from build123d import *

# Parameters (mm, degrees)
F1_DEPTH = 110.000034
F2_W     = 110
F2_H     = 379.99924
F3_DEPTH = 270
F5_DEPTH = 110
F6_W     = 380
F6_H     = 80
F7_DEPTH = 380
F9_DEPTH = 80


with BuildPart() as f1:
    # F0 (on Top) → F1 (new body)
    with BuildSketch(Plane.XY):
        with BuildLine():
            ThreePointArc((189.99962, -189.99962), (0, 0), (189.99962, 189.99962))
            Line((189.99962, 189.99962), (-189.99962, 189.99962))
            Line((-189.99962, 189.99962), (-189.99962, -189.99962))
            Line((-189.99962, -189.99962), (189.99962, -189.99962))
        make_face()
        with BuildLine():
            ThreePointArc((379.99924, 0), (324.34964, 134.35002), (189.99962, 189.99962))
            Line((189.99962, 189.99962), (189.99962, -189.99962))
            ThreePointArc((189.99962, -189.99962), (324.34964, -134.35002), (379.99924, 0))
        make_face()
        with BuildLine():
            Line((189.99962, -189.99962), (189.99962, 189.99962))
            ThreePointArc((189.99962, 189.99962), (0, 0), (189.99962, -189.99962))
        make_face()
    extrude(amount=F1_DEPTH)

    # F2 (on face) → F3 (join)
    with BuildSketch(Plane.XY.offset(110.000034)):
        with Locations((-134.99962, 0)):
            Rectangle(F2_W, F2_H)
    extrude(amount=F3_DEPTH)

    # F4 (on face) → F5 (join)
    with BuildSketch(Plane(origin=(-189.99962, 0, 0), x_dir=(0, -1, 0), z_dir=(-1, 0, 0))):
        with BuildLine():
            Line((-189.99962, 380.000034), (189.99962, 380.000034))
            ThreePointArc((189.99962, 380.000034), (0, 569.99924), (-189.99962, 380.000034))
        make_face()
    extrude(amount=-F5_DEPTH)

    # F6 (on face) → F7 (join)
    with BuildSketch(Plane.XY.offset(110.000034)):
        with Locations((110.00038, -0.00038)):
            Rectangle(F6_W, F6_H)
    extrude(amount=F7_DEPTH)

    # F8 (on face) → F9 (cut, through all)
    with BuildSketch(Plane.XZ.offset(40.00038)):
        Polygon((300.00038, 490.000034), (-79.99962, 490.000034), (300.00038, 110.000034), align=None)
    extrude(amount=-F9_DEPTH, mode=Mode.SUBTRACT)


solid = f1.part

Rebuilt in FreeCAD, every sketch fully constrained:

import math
import FreeCAD as App
import Part
import Sketcher
from FreeCAD import Vector


def add_polygon(sketch, points):
    """Adds a closed chain of lines whose ends are joined by coincident constraints."""
    first, n = sketch.GeometryCount, len(points)
    for a, b in zip(points, points[1:] + points[:1]):
        sketch.addGeometry(Part.LineSegment(App.Vector(*a, 0), App.Vector(*b, 0)), False)
    for i in range(n):
        sketch.addConstraint(Sketcher.Constraint("Coincident", first + i, 2, first + (i + 1) % n, 1))

doc = App.newDocument("Part")
params = doc.addObject("Spreadsheet::Sheet", "Params")
for row, (alias, value) in enumerate([
    ("pad1_length", "110.000034 mm"),
    ("sketch2_width", "110 mm"),
    ("pad2_length", "270 mm"),
    ("pad3_length", "110 mm"),
    ("sketch4_width", "380 mm"),
    ("sketch4_height", "80 mm"),
    ("pad4_length", "380 mm"),
    ("sketch5_width", "380 mm"),
], start=1):
    params.set(f"A{row}", alias)
    params.set(f"B{row}", "=" + value)
    params.setAlias(f"B{row}", alias)

body = doc.addObject("PartDesign::Body", "Body")

sketch1 = doc.addObject("Sketcher::SketchObject", "Sketch")
body.addObject(sketch1)
sketch1.AttachmentSupport = (doc.XY_Plane, [""])
sketch1.MapMode = "FlatFace"
sketch1.addGeometry([
    Part.LineSegment(Vector(190, 190, 0), Vector(-190, 190, 0)),
    Part.LineSegment(Vector(-190, 190, 0), Vector(-190, -190, 0)),
    Part.LineSegment(Vector(-190, -190, 0), Vector(190, -190, 0)),
    Part.ArcOfCircle(Part.Circle(Vector(190, 0, 0), Vector(0, 0, 1), 190), math.radians(-90), math.radians(0)),
    Part.ArcOfCircle(Part.Circle(Vector(190, 0, 0), Vector(0, 0, 1), 190), math.radians(0), math.radians(90)),
], False)
sketch1.addConstraint([
    Sketcher.Constraint("Coincident", 0, 2, 1, 1),
    Sketcher.Constraint("Coincident", 1, 2, 2, 1),
    Sketcher.Constraint("Tangent", 2, 2, 3, 1),
    Sketcher.Constraint("Tangent", 3, 2, 4, 1),
    Sketcher.Constraint("Tangent", 4, 2, 0, 1),
    Sketcher.Constraint("Horizontal", 0),
    Sketcher.Constraint("Vertical", 1),
    Sketcher.Constraint("Horizontal", 2),
    Sketcher.Constraint("Equal", 3, 4),
    Sketcher.Constraint("Symmetric", 0, 2, 2, 2, -1, 1),
    Sketcher.Constraint("PointOnObject", 3, 2, -1),
    Sketcher.Constraint("Equal", 2, 1),
    Sketcher.Constraint("Radius", 3, 189.999619),
])
pad1 = doc.addObject("PartDesign::Pad", "Pad")
body.addObject(pad1)
pad1.Profile = sketch1
pad1.setExpression("Length", "Params.pad1_length")

sketch2 = doc.addObject("Sketcher::SketchObject", "Sketch001")
body.addObject(sketch2)
sketch2.AttachmentSupport = (doc.XY_Plane, [""])
sketch2.MapMode = "FlatFace"
sketch2.AttachmentOffset = App.Placement(Vector(0, 0, 110.000034), App.Rotation())
add_polygon(sketch2, [(-190, 190), (-190, -190), (-80, -190), (-80, 190)])
sketch2.addConstraint([
    Sketcher.Constraint("Vertical", 0),
    Sketcher.Constraint("Horizontal", 1),
    Sketcher.Constraint("Vertical", 2),
    Sketcher.Constraint("Horizontal", 3),
    Sketcher.Constraint("DistanceX", 1, 1, 1, 2, 110.0),
    Sketcher.Constraint("DistanceY", 0, 2, 0, 1, 379.99924),
    Sketcher.Constraint("DistanceX", 0, 2, -1, 1, 189.99962),
    Sketcher.Constraint("DistanceY", 0, 2, -1, 1, 189.99962),
])
sketch2.setExpression("Constraints[8]", "Params.sketch2_width")
pad2 = doc.addObject("PartDesign::Pad", "Pad001")
body.addObject(pad2)
pad2.Profile = sketch2
pad2.setExpression("Length", "Params.pad2_length")

sketch3 = doc.addObject("Sketcher::SketchObject", "Sketch002")
body.addObject(sketch3)
sketch3.AttachmentSupport = (doc.YZ_Plane, [""])
sketch3.MapMode = "FlatFace"
sketch3.AttachmentOffset = App.Placement(Vector(0, 0, -189.99962), App.Rotation())
sketch3.addGeometry([
    Part.LineSegment(Vector(190, 380, 0), Vector(-190, 380, 0)),
    Part.ArcOfCircle(Part.Circle(Vector(0, 380, 0), Vector(0, 0, 1), 190), math.radians(0), math.radians(180)),
], False)
sketch3.addConstraint([
    Sketcher.Constraint("Coincident", 0, 1, 1, 1),
    Sketcher.Constraint("Coincident", 1, 2, 0, 2),
    Sketcher.Constraint("Horizontal", 0),
    Sketcher.Constraint("PointOnObject", 1, 3, -2),
    Sketcher.Constraint("Radius", 1, 189.99962),
    Sketcher.Constraint("DistanceY", -1, 1, 1, 3, 379.99962),
    Sketcher.Constraint("DistanceY", -1, 1, 0, 1, 380.000034),
])
pad3 = doc.addObject("PartDesign::Pad", "Pad002")
body.addObject(pad3)
pad3.Profile = sketch3
pad3.setExpression("Length", "Params.pad3_length")

sketch4 = doc.addObject("Sketcher::SketchObject", "Sketch003")
body.addObject(sketch4)
sketch4.AttachmentSupport = (doc.XY_Plane, [""])
sketch4.MapMode = "FlatFace"
sketch4.AttachmentOffset = App.Placement(Vector(0, 0, 110.000034), App.Rotation())
add_polygon(sketch4, [(-80, 40), (-80, -40), (300, -40), (300, 40)])
sketch4.addConstraint([
    Sketcher.Constraint("Vertical", 0),
    Sketcher.Constraint("Horizontal", 1),
    Sketcher.Constraint("Vertical", 2),
    Sketcher.Constraint("Horizontal", 3),
    Sketcher.Constraint("DistanceX", 1, 1, 1, 2, 380.0),
    Sketcher.Constraint("DistanceY", 0, 2, 0, 1, 80.0),
    Sketcher.Constraint("DistanceX", 0, 2, -1, 1, 79.99962),
    Sketcher.Constraint("DistanceY", 0, 2, -1, 1, 40.00038),
])
sketch4.setExpression("Constraints[8]", "Params.sketch4_width")
sketch4.setExpression("Constraints[9]", "Params.sketch4_height")
pad4 = doc.addObject("PartDesign::Pad", "Pad003")
body.addObject(pad4)
pad4.Profile = sketch4
pad4.setExpression("Length", "Params.pad4_length")

sketch5 = doc.addObject("Sketcher::SketchObject", "Sketch004")
body.addObject(sketch5)
sketch5.AttachmentSupport = (doc.XZ_Plane, [""])
sketch5.MapMode = "FlatFace"
sketch5.AttachmentOffset = App.Placement(Vector(0, 0, 40.00038), App.Rotation())
add_polygon(sketch5, [(300, 490), (-80, 490), (300, 110)])
sketch5.addConstraint([
    Sketcher.Constraint("Horizontal", 0),
    Sketcher.Constraint("Vertical", 2),
    Sketcher.Constraint("Equal", 0, 2),
    Sketcher.Constraint("DistanceX", 0, 2, 0, 1, 380.0),
    Sketcher.Constraint("DistanceX", 0, 2, -1, 1, 79.99962),
    Sketcher.Constraint("DistanceY", -1, 1, 0, 2, 490.000034),
])
sketch5.setExpression("Constraints[6]", "Params.sketch5_width")
pocket1 = doc.addObject("PartDesign::Pocket", "Pocket")
body.addObject(pocket1)
pocket1.Profile = sketch5
pocket1.Type = "ThroughAll"

doc.recompute()
